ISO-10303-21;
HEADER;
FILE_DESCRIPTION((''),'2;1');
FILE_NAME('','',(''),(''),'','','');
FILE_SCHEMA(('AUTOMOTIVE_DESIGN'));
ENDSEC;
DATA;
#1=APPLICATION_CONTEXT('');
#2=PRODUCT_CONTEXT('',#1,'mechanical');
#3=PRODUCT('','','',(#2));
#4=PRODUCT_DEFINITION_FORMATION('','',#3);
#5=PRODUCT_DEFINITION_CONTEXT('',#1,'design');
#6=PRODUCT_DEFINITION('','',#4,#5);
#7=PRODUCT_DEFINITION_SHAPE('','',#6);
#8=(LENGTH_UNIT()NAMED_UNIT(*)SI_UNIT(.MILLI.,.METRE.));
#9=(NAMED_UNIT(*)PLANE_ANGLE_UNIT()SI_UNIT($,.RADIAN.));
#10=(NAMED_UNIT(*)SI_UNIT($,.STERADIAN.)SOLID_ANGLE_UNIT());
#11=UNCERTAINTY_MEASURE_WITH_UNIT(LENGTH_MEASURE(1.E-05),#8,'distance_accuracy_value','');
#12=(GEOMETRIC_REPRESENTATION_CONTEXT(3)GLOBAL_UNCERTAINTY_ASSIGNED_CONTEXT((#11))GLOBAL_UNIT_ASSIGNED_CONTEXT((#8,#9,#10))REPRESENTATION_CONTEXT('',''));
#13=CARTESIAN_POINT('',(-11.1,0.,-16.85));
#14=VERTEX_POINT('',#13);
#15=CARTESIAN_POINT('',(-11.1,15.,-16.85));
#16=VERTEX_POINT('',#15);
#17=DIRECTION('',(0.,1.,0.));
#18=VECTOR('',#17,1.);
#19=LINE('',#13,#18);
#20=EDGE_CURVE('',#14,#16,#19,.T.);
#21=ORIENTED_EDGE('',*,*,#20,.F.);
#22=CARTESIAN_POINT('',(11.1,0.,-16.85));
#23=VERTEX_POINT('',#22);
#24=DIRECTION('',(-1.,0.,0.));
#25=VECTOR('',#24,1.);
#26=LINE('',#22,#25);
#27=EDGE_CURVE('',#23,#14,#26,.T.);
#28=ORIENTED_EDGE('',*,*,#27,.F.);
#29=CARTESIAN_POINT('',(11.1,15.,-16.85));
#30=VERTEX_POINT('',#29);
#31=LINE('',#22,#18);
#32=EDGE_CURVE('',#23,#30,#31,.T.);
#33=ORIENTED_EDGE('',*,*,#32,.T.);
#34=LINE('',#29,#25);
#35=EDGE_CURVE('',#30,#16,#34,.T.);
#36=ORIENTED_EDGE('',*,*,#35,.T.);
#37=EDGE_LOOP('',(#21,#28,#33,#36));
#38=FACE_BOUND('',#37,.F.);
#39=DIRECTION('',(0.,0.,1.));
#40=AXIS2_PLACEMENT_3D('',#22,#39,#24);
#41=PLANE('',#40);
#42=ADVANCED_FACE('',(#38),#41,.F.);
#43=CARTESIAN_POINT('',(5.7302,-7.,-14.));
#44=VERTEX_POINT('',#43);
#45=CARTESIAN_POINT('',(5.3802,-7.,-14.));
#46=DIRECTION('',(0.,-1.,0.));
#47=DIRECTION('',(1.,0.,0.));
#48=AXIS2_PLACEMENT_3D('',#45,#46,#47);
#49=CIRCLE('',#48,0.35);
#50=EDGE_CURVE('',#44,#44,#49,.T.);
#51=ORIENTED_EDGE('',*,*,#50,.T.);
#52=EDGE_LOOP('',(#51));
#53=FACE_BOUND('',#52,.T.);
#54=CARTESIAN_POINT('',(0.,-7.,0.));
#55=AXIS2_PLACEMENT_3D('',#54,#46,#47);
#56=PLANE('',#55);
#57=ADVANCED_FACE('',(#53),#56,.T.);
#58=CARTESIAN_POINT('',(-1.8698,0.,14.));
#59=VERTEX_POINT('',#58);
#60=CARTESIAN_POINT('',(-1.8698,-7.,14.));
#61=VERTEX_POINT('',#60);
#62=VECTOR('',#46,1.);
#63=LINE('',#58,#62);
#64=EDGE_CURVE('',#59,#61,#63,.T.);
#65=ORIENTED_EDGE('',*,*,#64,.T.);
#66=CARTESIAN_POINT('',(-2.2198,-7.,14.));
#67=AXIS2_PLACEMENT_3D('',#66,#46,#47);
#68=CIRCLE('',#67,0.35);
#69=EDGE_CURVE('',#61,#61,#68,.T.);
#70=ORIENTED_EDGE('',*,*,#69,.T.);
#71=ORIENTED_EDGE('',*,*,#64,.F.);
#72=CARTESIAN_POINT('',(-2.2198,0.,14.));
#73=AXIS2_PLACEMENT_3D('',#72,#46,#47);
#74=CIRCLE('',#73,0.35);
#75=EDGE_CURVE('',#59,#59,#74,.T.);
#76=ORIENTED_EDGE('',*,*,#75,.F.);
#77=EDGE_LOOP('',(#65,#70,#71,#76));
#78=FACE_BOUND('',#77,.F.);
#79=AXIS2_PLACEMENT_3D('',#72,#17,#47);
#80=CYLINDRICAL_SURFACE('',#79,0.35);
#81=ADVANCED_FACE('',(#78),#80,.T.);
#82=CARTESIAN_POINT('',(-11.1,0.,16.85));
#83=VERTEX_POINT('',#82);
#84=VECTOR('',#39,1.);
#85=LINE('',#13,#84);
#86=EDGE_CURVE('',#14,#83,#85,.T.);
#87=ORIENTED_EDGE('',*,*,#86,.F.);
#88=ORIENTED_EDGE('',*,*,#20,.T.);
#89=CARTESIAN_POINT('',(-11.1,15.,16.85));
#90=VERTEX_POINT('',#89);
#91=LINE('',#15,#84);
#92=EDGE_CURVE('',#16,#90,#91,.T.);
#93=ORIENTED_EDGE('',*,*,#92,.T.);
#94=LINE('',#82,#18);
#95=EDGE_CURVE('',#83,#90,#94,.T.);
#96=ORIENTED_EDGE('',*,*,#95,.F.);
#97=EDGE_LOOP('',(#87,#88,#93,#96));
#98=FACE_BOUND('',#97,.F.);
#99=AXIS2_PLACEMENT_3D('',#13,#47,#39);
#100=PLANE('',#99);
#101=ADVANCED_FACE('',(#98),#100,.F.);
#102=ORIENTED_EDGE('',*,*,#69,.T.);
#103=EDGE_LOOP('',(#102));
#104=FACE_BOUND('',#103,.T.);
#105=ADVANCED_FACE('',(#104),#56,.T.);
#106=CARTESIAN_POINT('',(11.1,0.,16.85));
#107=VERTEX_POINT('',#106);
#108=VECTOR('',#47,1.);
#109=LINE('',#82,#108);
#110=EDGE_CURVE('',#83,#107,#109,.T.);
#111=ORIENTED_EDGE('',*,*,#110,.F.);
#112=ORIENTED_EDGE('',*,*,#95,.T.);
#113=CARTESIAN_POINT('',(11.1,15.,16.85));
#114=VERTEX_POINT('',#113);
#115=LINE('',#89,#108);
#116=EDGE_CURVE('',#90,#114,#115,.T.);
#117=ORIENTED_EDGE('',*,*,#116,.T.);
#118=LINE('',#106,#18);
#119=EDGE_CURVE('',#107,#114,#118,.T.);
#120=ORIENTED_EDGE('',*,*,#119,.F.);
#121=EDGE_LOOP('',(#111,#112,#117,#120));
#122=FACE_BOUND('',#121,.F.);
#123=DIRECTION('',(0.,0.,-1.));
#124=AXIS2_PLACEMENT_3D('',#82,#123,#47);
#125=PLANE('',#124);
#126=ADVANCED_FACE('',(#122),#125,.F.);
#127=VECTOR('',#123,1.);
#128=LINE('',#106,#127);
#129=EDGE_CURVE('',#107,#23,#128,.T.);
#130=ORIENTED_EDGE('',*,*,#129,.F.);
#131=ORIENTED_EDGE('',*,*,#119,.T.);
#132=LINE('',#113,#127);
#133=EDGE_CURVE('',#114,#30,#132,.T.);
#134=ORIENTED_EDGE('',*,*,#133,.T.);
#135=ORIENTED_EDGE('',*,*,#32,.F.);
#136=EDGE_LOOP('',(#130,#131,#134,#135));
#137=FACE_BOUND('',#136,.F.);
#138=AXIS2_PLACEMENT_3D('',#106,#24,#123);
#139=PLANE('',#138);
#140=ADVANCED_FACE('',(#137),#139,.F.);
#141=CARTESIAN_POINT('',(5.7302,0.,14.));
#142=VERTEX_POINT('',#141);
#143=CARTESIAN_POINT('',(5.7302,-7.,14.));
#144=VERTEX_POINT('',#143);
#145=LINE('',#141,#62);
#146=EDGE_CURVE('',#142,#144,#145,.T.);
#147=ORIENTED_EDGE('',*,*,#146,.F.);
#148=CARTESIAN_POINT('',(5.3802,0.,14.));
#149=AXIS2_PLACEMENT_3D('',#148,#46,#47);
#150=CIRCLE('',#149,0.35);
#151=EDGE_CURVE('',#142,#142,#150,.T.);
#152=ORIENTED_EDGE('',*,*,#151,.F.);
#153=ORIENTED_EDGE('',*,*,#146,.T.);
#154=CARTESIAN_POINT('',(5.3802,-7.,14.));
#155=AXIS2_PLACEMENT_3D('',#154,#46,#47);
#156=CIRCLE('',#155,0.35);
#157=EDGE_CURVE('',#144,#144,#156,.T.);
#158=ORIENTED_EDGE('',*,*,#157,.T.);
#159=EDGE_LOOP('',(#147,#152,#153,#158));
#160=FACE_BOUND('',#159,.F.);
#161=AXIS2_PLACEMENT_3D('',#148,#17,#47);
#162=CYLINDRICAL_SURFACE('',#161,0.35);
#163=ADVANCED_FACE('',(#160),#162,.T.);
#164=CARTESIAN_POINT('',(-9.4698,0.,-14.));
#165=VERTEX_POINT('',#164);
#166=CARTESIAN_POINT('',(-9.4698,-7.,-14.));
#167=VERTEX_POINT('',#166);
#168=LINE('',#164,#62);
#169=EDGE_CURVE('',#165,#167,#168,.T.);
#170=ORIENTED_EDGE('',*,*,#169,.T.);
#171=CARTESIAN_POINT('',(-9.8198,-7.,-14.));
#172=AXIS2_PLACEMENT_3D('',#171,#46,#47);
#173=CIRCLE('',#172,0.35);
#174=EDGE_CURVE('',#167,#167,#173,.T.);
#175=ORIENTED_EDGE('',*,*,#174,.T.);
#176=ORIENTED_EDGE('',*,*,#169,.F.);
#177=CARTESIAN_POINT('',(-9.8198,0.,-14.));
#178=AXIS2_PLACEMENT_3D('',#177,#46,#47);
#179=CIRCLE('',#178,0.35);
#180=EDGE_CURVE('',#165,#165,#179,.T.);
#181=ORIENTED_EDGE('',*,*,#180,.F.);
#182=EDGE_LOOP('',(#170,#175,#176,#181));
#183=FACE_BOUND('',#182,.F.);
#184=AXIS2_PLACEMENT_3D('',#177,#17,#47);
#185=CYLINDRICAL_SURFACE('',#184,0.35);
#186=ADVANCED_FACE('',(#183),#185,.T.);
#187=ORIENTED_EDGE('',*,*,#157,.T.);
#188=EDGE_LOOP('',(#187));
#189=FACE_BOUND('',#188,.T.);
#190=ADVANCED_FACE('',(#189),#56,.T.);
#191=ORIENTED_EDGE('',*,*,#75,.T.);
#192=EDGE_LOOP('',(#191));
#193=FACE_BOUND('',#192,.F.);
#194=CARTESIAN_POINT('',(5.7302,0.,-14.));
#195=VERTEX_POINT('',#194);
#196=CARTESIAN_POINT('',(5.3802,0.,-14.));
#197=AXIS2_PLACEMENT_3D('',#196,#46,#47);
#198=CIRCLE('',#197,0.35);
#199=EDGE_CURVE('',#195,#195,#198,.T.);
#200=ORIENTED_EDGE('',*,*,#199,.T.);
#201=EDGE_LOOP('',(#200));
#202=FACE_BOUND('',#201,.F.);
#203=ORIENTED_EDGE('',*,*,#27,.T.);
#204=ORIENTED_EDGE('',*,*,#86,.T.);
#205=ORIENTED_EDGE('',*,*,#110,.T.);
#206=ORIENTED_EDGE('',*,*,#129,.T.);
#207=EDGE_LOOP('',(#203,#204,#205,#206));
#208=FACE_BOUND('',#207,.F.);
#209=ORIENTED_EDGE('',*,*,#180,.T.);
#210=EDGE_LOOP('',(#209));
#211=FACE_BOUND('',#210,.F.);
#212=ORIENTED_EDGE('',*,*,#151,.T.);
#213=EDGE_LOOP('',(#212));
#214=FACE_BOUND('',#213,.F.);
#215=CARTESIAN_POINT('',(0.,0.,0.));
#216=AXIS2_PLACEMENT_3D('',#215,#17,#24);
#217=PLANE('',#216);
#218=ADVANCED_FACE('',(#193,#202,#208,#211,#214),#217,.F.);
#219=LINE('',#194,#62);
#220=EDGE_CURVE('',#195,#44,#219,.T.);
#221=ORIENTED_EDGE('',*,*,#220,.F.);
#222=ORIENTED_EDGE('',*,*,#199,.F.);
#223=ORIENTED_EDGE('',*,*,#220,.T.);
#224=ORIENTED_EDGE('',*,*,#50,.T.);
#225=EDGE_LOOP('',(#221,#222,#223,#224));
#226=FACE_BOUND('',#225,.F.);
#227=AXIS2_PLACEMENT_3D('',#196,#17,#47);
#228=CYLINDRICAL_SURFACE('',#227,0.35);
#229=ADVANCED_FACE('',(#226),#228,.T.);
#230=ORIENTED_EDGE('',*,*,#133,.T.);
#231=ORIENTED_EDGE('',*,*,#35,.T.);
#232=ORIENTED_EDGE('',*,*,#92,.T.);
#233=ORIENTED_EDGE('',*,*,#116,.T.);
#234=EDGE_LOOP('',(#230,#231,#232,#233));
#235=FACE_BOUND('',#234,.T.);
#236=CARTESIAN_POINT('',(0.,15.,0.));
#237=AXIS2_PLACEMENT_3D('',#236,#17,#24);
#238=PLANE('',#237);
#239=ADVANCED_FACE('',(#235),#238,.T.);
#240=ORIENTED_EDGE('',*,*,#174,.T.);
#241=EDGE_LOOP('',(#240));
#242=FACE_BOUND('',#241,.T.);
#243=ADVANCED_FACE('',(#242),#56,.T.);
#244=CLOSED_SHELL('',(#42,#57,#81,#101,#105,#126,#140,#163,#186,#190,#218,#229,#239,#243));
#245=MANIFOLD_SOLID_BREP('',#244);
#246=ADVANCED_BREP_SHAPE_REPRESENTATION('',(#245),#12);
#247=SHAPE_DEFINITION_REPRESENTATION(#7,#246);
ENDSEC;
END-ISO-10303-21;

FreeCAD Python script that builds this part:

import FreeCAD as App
import Part
import Sketcher
Q = App.Units.Quantity


def add_polygon(sketch, points):
    """Adds a closed chain of lines whose ends are joined by coincident constraints."""
    first, n = sketch.GeometryCount, len(points)
    for a, b in zip(points, points[1:] + points[:1]):
        sketch.addGeometry(Part.LineSegment(App.Vector(*a, 0), App.Vector(*b, 0)), False)
    for i in range(n):
        sketch.addConstraint(Sketcher.Constraint("Coincident", first + i, 2, first + (i + 1) % n, 1))

doc = App.newDocument("Part")
body = doc.addObject("PartDesign::Body", "Body")

# Sketch on XZ plane
sketch1 = body.newObject("Sketcher::SketchObject", "Sketch")
sketch1.AttachmentSupport = (doc.getObject("XZ_Plane"), [""])
sketch1.MapMode = "FlatFace"
add_polygon(sketch1, [(-11, -17), (-11, 17), (11, 17), (11, -17)])  # lines 0-3
sketch1.addConstraint([
    Sketcher.Constraint("Vertical", 0),
    Sketcher.Constraint("Horizontal", 1),
    Sketcher.Constraint("Vertical", 2),
    Sketcher.Constraint("Horizontal", 3),
    Sketcher.Constraint("Symmetric", 0, 2, 2, 2, -1, 1),
    Sketcher.Constraint("DistanceX", 1, 1, 1, 2, Q("22.2 mm")),
    Sketcher.Constraint("DistanceY", 0, 1, 0, 2, Q("33.7 mm")),
])
pad1 = body.newObject("PartDesign::Pad", "Pad")
pad1.Profile = sketch1
pad1.Length = 15
pad1.Reversed = True

# Sketch on XZ plane
sketch2 = body.newObject("Sketcher::SketchObject", "Sketch001")
sketch2.AttachmentSupport = (doc.getObject("XZ_Plane"), [""])
sketch2.MapMode = "FlatFace"
sketch2.addGeometry([
    Part.Circle(App.Vector(5.38, 14, 0), App.Vector(0, 0, 1), 0.35),
    Part.Circle(App.Vector(-2.22, 14, 0), App.Vector(0, 0, 1), 0.35),
    Part.Circle(App.Vector(5.38, -14, 0), App.Vector(0, 0, 1), 0.35),
    Part.Circle(App.Vector(-9.82, -14, 0), App.Vector(0, 0, 1), 0.35),
], False)
sketch2.addConstraint([
    Sketcher.Constraint("Equal", 0, 1),
    Sketcher.Constraint("Equal", 1, 2),
    Sketcher.Constraint("Equal", 2, 3),
    Sketcher.Constraint("Symmetric", 0, 3, 2, 3, -1),
    Sketcher.Constraint("Horizontal", 0, 3, 1, 3),
    Sketcher.Constraint("Horizontal", 2, 3, 3, 3),
    Sketcher.Constraint("Diameter", 0, Q("0.7 mm")),
    Sketcher.Constraint("DistanceY", 2, 3, 0, 3, Q("28 mm")),
    Sketcher.Constraint("DistanceX", 1, 3, 0, 3, Q("7.6 mm")),
    Sketcher.Constraint("DistanceX", 3, 3, 2, 3, Q("15.2 mm")),
    Sketcher.Constraint("DistanceX", -1, 1, 0, 3, Q("5.3802 mm")),
])
pad2 = body.newObject("PartDesign::Pad", "Pad001")
pad2.Profile = sketch2
pad2.Length = 7

doc.recompute()
